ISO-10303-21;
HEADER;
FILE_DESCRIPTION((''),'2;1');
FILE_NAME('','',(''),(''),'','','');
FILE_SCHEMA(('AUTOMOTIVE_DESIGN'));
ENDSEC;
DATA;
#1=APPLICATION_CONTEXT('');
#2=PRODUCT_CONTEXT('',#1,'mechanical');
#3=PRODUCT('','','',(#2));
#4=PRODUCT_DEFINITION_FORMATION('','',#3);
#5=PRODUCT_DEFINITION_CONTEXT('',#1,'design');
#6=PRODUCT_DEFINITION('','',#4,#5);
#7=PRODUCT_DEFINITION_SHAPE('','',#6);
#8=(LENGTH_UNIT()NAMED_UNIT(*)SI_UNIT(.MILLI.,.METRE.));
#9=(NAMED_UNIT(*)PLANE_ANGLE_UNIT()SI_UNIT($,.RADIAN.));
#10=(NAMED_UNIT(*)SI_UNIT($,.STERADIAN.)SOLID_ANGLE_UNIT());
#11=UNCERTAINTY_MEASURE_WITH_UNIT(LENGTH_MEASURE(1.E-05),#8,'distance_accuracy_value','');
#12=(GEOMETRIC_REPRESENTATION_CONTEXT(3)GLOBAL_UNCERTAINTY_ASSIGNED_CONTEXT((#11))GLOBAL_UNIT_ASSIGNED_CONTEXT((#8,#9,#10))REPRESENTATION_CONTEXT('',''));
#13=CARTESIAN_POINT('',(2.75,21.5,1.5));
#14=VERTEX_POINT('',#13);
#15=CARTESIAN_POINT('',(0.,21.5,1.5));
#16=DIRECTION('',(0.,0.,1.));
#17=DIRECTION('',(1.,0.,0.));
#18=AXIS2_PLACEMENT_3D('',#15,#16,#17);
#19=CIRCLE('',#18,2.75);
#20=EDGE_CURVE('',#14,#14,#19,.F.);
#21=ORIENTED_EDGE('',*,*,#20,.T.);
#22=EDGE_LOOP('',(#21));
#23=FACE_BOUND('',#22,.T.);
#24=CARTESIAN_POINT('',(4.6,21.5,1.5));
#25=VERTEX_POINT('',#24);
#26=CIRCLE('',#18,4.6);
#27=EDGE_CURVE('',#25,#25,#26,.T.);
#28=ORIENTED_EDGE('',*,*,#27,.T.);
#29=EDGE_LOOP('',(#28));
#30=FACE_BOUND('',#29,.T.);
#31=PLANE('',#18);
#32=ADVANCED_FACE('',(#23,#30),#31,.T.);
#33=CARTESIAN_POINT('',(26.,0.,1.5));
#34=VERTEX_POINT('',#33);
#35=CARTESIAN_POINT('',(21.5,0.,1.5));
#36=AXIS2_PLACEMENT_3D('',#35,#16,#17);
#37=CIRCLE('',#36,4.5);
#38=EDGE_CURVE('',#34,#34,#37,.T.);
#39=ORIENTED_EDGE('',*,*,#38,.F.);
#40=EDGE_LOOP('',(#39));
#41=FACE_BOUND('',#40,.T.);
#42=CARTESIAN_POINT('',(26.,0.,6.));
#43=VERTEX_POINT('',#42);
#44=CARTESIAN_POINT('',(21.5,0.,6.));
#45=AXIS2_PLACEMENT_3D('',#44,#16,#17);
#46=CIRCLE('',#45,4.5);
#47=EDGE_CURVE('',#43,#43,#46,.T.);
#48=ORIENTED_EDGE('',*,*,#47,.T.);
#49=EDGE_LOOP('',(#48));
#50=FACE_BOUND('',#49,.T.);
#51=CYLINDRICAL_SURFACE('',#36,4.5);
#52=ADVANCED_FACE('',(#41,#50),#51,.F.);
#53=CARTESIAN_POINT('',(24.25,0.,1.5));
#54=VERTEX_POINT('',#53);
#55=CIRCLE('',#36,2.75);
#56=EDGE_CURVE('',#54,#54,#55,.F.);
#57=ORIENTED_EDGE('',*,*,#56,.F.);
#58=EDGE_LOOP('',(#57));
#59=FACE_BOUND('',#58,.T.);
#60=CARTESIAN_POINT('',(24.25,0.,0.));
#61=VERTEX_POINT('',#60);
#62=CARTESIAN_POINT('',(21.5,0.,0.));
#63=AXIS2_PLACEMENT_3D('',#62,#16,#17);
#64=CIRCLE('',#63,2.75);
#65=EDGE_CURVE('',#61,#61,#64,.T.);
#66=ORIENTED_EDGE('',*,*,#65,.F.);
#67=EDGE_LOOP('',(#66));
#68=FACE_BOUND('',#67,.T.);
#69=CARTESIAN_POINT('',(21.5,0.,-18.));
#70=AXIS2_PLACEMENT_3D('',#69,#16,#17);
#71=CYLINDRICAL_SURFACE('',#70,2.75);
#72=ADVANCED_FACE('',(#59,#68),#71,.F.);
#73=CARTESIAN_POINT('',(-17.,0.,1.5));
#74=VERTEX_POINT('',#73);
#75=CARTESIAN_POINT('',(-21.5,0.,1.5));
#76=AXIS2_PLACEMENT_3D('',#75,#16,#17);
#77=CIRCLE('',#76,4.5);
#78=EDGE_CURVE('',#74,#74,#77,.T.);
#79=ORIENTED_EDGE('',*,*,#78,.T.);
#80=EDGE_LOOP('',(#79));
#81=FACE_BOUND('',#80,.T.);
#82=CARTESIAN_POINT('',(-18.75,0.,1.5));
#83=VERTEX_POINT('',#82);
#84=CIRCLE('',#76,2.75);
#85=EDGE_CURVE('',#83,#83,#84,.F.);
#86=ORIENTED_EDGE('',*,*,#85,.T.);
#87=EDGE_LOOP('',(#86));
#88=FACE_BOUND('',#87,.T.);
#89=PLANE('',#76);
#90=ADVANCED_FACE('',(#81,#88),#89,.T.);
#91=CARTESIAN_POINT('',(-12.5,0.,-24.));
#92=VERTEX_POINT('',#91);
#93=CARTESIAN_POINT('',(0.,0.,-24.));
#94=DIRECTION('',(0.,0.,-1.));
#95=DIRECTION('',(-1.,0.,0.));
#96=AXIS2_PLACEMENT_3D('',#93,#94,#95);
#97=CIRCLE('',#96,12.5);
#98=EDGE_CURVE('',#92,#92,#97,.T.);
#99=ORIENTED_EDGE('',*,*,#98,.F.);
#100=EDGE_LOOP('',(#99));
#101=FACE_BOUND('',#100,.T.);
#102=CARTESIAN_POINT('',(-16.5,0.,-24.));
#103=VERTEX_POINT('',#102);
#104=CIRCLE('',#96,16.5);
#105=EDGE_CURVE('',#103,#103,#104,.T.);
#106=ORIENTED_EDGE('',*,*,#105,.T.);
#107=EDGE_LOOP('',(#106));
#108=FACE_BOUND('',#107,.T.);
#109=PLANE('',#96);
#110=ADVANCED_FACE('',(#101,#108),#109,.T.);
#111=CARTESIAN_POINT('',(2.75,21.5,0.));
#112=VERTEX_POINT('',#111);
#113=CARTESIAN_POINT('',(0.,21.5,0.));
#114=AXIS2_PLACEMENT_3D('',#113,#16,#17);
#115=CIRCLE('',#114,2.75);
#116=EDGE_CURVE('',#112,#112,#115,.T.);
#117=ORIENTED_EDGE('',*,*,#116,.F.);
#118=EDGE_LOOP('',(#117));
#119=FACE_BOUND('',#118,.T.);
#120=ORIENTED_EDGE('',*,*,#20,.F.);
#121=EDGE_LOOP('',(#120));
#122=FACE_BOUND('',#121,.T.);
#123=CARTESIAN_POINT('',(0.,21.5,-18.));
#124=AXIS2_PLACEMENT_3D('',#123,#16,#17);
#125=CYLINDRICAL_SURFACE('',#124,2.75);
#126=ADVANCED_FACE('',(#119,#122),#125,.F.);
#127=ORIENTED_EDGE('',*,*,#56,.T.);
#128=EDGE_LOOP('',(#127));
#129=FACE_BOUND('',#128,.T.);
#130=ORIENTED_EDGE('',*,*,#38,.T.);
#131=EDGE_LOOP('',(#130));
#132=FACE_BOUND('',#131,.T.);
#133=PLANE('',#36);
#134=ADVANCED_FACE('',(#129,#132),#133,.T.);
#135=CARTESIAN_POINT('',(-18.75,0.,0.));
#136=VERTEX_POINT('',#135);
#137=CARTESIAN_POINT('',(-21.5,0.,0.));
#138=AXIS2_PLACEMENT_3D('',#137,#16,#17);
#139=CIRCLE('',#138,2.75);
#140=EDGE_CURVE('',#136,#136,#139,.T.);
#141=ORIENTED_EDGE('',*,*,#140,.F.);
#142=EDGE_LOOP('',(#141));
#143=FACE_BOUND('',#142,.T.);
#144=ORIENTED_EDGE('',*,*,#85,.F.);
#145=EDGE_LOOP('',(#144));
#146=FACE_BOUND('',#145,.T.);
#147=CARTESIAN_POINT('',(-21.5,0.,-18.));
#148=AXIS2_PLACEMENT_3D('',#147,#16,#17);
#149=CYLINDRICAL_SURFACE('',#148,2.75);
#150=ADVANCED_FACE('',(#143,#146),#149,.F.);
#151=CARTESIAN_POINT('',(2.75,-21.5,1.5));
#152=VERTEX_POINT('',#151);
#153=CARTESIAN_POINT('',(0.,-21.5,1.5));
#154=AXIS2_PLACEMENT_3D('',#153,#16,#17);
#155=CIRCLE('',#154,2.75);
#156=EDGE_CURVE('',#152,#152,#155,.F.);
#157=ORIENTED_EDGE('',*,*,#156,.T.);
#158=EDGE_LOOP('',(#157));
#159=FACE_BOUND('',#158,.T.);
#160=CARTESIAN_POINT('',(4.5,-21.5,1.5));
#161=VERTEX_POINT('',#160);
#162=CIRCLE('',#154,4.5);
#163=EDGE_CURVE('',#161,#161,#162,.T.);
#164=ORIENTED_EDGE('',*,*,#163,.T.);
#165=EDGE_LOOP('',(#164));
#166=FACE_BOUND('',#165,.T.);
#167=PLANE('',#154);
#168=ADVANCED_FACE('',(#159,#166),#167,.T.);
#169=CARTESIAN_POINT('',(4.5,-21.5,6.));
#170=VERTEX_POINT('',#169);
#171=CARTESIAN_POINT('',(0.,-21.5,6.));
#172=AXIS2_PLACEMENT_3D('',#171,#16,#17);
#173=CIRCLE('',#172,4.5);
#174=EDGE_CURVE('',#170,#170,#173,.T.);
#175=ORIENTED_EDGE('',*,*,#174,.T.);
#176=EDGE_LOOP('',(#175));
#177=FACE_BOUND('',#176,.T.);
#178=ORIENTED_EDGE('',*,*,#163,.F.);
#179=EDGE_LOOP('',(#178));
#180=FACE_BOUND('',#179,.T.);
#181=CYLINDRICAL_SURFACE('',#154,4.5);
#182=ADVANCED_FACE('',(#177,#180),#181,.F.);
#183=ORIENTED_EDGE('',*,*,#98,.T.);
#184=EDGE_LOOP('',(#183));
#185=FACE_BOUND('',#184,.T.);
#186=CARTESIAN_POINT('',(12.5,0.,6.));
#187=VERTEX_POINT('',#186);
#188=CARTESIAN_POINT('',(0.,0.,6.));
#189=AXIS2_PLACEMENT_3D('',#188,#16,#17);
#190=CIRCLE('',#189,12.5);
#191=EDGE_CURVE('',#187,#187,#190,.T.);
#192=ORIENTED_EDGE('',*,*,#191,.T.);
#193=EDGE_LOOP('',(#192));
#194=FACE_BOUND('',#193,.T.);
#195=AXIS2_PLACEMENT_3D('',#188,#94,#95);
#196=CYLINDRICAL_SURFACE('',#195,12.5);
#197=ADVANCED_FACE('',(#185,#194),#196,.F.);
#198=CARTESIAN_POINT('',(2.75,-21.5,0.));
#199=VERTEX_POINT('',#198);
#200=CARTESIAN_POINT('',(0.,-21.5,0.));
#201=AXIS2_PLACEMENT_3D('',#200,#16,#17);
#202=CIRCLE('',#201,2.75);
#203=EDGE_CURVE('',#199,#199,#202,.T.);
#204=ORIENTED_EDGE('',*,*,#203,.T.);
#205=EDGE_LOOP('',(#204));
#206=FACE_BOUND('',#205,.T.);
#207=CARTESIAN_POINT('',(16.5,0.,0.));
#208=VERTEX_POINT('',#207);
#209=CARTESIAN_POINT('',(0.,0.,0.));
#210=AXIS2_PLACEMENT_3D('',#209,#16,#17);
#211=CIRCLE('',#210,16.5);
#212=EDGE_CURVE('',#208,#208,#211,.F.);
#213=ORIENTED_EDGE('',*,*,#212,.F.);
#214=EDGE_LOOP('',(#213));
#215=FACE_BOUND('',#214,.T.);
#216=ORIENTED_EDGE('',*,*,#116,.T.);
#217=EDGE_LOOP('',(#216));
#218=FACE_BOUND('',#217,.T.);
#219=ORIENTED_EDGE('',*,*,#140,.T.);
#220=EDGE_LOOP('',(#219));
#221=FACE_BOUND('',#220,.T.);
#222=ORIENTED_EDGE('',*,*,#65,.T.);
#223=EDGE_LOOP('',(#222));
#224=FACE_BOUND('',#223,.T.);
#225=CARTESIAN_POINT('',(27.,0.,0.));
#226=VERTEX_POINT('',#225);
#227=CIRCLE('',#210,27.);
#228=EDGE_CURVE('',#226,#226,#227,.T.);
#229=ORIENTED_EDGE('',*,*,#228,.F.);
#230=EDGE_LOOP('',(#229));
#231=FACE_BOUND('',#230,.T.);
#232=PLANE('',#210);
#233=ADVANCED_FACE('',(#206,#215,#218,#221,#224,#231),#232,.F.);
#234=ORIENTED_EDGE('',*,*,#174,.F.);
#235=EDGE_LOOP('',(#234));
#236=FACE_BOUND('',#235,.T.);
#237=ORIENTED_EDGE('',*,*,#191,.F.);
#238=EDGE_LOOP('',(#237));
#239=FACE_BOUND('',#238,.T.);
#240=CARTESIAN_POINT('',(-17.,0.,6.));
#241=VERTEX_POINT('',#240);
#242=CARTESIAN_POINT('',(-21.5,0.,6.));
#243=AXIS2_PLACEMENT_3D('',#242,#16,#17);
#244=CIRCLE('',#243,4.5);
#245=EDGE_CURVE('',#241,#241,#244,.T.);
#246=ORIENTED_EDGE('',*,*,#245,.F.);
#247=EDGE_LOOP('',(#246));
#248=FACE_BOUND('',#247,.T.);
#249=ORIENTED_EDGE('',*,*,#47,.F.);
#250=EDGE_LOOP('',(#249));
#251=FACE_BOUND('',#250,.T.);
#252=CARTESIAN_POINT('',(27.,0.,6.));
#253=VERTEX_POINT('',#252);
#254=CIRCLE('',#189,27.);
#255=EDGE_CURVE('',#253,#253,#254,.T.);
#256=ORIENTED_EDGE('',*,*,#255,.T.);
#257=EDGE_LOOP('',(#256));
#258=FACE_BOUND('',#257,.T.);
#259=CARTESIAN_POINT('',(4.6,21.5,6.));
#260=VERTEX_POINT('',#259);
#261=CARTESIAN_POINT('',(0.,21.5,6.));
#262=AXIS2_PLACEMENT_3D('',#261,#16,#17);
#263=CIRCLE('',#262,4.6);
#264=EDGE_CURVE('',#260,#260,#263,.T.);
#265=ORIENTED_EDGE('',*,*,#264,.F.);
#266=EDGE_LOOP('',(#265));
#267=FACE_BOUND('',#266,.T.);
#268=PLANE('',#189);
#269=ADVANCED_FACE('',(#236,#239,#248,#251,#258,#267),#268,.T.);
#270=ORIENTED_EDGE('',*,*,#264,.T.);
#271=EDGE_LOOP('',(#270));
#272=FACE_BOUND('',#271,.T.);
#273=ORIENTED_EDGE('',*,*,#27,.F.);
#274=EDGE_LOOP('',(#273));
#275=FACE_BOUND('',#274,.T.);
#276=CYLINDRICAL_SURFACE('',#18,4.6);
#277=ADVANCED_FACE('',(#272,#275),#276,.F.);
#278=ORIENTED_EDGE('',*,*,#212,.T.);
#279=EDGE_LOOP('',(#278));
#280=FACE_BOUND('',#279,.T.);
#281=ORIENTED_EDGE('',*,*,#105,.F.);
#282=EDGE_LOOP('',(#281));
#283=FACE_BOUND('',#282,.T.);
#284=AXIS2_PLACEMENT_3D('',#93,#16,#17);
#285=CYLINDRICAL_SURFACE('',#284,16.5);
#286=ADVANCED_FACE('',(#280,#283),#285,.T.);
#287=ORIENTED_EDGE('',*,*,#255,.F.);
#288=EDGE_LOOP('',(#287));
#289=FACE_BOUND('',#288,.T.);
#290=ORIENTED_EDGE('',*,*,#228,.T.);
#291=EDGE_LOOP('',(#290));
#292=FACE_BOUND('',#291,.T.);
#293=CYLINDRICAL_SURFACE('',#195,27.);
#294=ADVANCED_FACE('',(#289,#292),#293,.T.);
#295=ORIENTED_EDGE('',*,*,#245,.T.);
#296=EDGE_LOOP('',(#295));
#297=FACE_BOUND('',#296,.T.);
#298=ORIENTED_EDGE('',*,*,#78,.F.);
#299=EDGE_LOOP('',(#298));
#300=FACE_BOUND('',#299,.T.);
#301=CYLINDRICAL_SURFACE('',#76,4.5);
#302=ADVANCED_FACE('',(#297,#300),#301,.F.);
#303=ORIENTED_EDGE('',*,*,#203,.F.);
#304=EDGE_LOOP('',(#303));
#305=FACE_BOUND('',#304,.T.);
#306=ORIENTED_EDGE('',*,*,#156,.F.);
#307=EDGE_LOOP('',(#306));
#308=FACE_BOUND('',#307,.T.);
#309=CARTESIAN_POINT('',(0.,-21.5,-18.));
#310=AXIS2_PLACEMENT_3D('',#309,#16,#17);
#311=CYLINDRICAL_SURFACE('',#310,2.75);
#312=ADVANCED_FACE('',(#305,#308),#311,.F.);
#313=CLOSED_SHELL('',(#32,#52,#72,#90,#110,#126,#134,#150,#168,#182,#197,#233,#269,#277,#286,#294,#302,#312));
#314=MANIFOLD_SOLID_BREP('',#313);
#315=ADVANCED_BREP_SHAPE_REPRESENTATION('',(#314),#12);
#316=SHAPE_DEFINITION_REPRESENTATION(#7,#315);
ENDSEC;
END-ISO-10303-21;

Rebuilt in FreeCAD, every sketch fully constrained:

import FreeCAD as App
import Part
import Sketcher

V = App.Vector

doc = App.newDocument("Part")
body = doc.addObject("PartDesign::Body", "Body")

# Sketch on XY plane
sketch1 = body.newObject("Sketcher::SketchObject", "Sketch")
sketch1.AttachmentSupport = (doc.getObject("XY_Plane"), [""])
sketch1.MapMode = "FlatFace"
sketch1.addGeometry([
    Part.Circle(V(0, 0, 0), V(0, 0, 1), 27),
    Part.Circle(V(0, 0, 0), V(0, 0, 1), 12),
], False)
sketch1.addConstraint([
    Sketcher.Constraint("Coincident", 0, 3, -1, 1),
    Sketcher.Constraint("Coincident", 1, 3, -1, 1),
    Sketcher.Constraint("Diameter", 0, 54.0),
    Sketcher.Constraint("Diameter", 1, 25.0),
])
pad1 = body.newObject("PartDesign::Pad", "Pad")
pad1.Profile = sketch1
pad1.Length = 6

# Sketch on XY plane
sketch2 = body.newObject("Sketcher::SketchObject", "Sketch001")
sketch2.AttachmentSupport = (doc.getObject("XY_Plane"), [""])
sketch2.MapMode = "FlatFace"
sketch2.AttachmentOffset = App.Placement(V(0, 0, -24), App.Rotation())
sketch2.addGeometry([
    Part.Circle(V(0, 0, 0), V(0, 0, 1), 16),
    Part.Circle(V(0, 0, 0), V(0, 0, 1), 12),
], False)
sketch2.addConstraint([
    Sketcher.Constraint("Coincident", 0, 3, -1, 1),
    Sketcher.Constraint("Coincident", 1, 3, -1, 1),
    Sketcher.Constraint("Diameter", 0, 33.0),
    Sketcher.Constraint("Diameter", 1, 25.0),
])
pad2 = body.newObject("PartDesign::Pad", "Pad001")
pad2.Profile = sketch2
pad2.Length = 24

# Sketch on XY plane
sketch3 = body.newObject("Sketcher::SketchObject", "Sketch002")
sketch3.AttachmentSupport = (doc.getObject("XY_Plane"), [""])
sketch3.MapMode = "FlatFace"
sketch3.AttachmentOffset = App.Placement(V(0, 0, 6), App.Rotation())
sketch3.addGeometry([
    Part.Circle(V(0, 21.5, 0), V(0, 0, 1), 2.8),
    Part.Circle(V(21.5, 0, 0), V(0, 0, 1), 2.8),
    Part.Circle(V(0, -21.5, 0), V(0, 0, 1), 2.8),
    Part.Circle(V(-21.5, 0, 0), V(0, 0, 1), 2.8),
], False)
sketch3.addConstraint([
    Sketcher.Constraint("Equal", 0, 1),
    Sketcher.Constraint("Equal", 1, 2),
    Sketcher.Constraint("Equal", 2, 3),
    Sketcher.Constraint("Symmetric", 0, 3, 2, 3, -1, 1),
    Sketcher.Constraint("Symmetric", 1, 3, 3, 3, -1, 1),
    Sketcher.Constraint("PointOnObject", 0, 3, -2),
    Sketcher.Constraint("PointOnObject", 1, 3, -1),
    Sketcher.Constraint("Diameter", 0, 5.5),
    Sketcher.Constraint("DistanceY", 2, 3, 0, 3, 43.0),
    Sketcher.Constraint("DistanceX", 3, 3, 1, 3, 43.0),
])
pocket1 = body.newObject("PartDesign::Pocket", "Pocket")
pocket1.Profile = sketch3
pocket1.Length = 24

# Sketch on XY plane
sketch4 = body.newObject("Sketcher::SketchObject", "Sketch003")
sketch4.AttachmentSupport = (doc.getObject("XY_Plane"), [""])
sketch4.MapMode = "FlatFace"
sketch4.AttachmentOffset = App.Placement(V(0, 0, 6), App.Rotation())
sketch4.addGeometry([
    Part.Circle(V(0, 21.5, 0), V(0, 0, 1), 4.6),
    Part.Circle(V(21.5, 0, 0), V(0, 0, 1), 4.5),
    Part.Circle(V(0, -21.5, 0), V(0, 0, 1), 4.5),
    Part.Circle(V(-21.5, 0, 0), V(0, 0, 1), 4.5),
], False)
sketch4.addConstraint([
    Sketcher.Constraint("Equal", 1, 2),
    Sketcher.Constraint("Equal", 2, 3),
    Sketcher.Constraint("Symmetric", 0, 3, 2, 3, -1, 1),
    Sketcher.Constraint("Symmetric", 1, 3, 3, 3, -1, 1),
    Sketcher.Constraint("PointOnObject", 0, 3, -2),
    Sketcher.Constraint("PointOnObject", 1, 3, -1),
    Sketcher.Constraint("Diameter", 1, 9.0),
    Sketcher.Constraint("Diameter", 0, 9.2),
    Sketcher.Constraint("DistanceY", 2, 3, 0, 3, 43.0),
    Sketcher.Constraint("DistanceX", 3, 3, 1, 3, 43.0),
])
pocket2 = body.newObject("PartDesign::Pocket", "Pocket001")
pocket2.Profile = sketch4
pocket2.Length = 4.5

doc.recompute()
